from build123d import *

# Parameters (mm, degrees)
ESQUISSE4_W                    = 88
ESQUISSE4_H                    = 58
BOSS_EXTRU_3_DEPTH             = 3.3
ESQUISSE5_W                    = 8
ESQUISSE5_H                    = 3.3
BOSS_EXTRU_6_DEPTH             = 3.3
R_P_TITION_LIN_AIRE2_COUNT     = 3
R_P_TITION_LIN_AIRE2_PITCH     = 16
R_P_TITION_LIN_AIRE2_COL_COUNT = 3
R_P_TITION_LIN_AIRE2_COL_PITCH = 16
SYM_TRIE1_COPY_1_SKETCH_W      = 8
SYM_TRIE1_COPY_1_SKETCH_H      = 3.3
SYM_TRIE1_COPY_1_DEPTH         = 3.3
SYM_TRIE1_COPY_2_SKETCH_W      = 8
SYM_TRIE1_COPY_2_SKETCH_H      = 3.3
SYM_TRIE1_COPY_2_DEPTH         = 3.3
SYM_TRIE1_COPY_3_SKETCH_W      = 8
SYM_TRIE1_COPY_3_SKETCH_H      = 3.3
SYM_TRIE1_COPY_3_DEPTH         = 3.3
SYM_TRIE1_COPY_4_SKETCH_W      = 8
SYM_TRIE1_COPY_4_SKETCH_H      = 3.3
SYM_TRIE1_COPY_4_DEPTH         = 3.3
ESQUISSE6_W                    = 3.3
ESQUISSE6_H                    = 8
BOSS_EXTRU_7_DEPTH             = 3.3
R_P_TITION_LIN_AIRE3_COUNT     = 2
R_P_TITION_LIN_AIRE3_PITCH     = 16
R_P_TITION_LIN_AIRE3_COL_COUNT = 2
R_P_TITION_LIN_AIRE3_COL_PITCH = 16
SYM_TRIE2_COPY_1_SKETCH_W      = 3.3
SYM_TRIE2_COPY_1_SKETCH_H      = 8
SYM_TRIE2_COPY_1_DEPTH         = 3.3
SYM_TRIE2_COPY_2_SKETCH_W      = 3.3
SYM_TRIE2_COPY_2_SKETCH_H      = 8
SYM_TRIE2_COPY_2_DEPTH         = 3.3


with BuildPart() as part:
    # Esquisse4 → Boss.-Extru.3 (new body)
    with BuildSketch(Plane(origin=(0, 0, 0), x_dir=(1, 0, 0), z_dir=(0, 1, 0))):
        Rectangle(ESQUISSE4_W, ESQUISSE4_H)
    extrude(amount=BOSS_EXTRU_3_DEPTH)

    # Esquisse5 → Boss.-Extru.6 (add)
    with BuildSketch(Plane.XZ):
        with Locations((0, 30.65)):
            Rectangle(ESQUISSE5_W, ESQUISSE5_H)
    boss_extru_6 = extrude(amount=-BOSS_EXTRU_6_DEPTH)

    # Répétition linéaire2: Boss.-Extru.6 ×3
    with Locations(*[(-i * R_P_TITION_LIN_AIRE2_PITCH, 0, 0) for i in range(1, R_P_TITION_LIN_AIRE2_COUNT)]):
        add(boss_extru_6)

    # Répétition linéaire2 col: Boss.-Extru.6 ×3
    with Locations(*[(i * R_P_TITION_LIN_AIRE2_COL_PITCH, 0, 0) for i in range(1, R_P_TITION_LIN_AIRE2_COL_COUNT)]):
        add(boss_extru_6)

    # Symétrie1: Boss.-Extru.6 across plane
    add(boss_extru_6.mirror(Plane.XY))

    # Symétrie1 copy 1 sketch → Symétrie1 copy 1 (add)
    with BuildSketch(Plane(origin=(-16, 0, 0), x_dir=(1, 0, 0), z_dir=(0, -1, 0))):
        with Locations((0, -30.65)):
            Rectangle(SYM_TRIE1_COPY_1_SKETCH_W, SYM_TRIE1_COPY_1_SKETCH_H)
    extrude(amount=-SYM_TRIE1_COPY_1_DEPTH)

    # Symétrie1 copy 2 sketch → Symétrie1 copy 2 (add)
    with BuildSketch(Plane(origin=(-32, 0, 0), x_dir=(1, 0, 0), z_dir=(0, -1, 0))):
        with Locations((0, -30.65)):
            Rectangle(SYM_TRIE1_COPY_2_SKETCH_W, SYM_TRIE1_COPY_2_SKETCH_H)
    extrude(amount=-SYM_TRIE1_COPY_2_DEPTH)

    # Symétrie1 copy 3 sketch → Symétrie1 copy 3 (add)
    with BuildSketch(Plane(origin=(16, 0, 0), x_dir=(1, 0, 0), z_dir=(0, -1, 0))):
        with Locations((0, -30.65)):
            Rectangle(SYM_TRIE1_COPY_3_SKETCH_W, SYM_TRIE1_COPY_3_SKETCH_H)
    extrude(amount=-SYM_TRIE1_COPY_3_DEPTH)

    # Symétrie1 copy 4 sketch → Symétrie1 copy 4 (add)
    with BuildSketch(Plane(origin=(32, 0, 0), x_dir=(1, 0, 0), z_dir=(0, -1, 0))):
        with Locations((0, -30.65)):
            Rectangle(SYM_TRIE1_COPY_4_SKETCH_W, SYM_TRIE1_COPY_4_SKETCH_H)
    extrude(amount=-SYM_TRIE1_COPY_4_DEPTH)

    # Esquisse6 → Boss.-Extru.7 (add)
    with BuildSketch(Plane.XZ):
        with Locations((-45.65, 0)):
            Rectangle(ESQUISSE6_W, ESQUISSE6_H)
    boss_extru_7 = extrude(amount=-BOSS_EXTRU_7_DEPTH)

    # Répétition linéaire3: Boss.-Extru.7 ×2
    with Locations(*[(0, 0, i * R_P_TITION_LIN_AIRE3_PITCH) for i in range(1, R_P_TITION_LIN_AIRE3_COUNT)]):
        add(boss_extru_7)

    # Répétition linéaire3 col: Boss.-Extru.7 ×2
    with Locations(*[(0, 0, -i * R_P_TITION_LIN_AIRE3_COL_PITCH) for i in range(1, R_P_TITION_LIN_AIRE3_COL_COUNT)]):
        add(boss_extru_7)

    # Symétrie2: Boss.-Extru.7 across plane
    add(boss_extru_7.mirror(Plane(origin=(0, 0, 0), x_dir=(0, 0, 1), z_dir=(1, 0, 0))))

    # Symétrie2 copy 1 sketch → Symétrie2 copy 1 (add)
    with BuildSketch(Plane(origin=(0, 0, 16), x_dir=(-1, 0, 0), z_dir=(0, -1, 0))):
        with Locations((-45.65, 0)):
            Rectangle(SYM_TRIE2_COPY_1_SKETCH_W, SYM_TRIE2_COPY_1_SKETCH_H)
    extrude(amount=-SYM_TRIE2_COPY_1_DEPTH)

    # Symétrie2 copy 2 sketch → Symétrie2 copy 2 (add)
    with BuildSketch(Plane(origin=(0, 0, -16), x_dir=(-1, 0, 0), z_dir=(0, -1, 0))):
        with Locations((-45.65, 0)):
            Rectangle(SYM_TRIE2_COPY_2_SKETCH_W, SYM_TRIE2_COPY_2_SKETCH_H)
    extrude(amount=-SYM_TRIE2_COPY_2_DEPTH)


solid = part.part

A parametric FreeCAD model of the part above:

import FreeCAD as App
import Part
import Sketcher
from FreeCAD import Vector
Q = App.Units.Quantity


def add_polygon(sketch, points):
    """Adds a closed chain of lines whose ends are joined by coincident constraints."""
    first, n = sketch.GeometryCount, len(points)
    for a, b in zip(points, points[1:] + points[:1]):
        sketch.addGeometry(Part.LineSegment(App.Vector(*a, 0), App.Vector(*b, 0)), False)
    for i in range(n):
        sketch.addConstraint(Sketcher.Constraint("Coincident", first + i, 2, first + (i + 1) % n, 1))

doc = App.newDocument("Part")
body = doc.addObject("PartDesign::Body", "Body")

sketch1 = body.newObject("Sketcher::SketchObject", "Sketch")
sketch1.AttachmentSupport = (doc.getObject("XZ_Plane"), [""])
sketch1.MapMode = "FlatFace"
add_polygon(sketch1, [(-44, -29), (-44, 29), (44, 29), (44, -29)])
sketch1.addConstraint([
    Sketcher.Constraint("Vertical", 0),
    Sketcher.Constraint("Horizontal", 1),
    Sketcher.Constraint("Vertical", 2),
    Sketcher.Constraint("Horizontal", 3),
    Sketcher.Constraint("Symmetric", 0, 2, 2, 2, -1, 1),
    Sketcher.Constraint("DistanceX", 1, 1, 1, 2, Q("88 mm")),
    Sketcher.Constraint("DistanceY", 0, 1, 0, 2, Q("58 mm")),
])
pad1 = body.newObject("PartDesign::Pad", "Pad")
pad1.Profile = sketch1
pad1.Length = 3.3
pad1.Reversed = True

sketch2 = body.newObject("Sketcher::SketchObject", "Sketch001")
sketch2.AttachmentSupport = (doc.getObject("XZ_Plane"), [""])
sketch2.MapMode = "FlatFace"
add_polygon(sketch2, [(-4, 32.3), (-4, 29), (4, 29), (4, 32.3)])
sketch2.addConstraint([
    Sketcher.Constraint("Vertical", 0),
    Sketcher.Constraint("Horizontal", 1),
    Sketcher.Constraint("Vertical", 2),
    Sketcher.Constraint("Horizontal", 3),
    Sketcher.Constraint("DistanceX", 1, 1, 1, 2, Q("8 mm")),
    Sketcher.Constraint("DistanceY", 0, 2, 0, 1, Q("3.3 mm")),
    Sketcher.Constraint("DistanceX", 0, 2, -1, 1, Q("4 mm")),
    Sketcher.Constraint("DistanceY", -1, 1, 0, 2, Q("29 mm")),
])
pad2 = body.newObject("PartDesign::Pad", "Pad001")
pad2.Profile = sketch2
pad2.Length = 3.3
pad2.Reversed = True
doc.recompute()

linearpattern = body.newObject("PartDesign::LinearPattern", "LinearPattern")
linearpattern.Originals = [pad2]
linearpattern.Direction = (doc.getObject("X_Axis"), [""])
linearpattern.Mode = "offset"
linearpattern.Offset = 16
linearpattern.Occurrences = 3
linearpattern.Reversed = True
body.Tip = linearpattern
doc.recompute()

linearpattern2 = body.newObject("PartDesign::LinearPattern", "LinearPattern001")
linearpattern2.Originals = [pad2]
linearpattern2.Direction = (doc.getObject("X_Axis"), [""])
linearpattern2.Mode = "offset"
linearpattern2.Offset = 16
linearpattern2.Occurrences = 3
body.Tip = linearpattern2
doc.recompute()

mirrored = body.newObject("PartDesign::Mirrored", "Mirrored")
mirrored.Originals = [pad2]
mirrored.MirrorPlane = (doc.getObject("XY_Plane"), [""])
body.Tip = mirrored

sketch3 = body.newObject("Sketcher::SketchObject", "Sketch002")
sketch3.AttachmentSupport = (doc.getObject("XZ_Plane"), [""])
sketch3.MapMode = "FlatFace"
add_polygon(sketch3, [(-20, -29), (-20, -32.3), (-12, -32.3), (-12, -29)])
sketch3.addConstraint([
    Sketcher.Constraint("Vertical", 0),
    Sketcher.Constraint("Horizontal", 1),
    Sketcher.Constraint("Vertical", 2),
    Sketcher.Constraint("Horizontal", 3),
    Sketcher.Constraint("DistanceX", 1, 1, 1, 2, Q("8 mm")),
    Sketcher.Constraint("DistanceY", 0, 2, 0, 1, Q("3.3 mm")),
    Sketcher.Constraint("DistanceX", 0, 2, -1, 1, Q("20 mm")),
    Sketcher.Constraint("DistanceY", 2, 2, -1, 1, Q("29 mm")),
])
pad3 = body.newObject("PartDesign::Pad", "Pad002")
pad3.Profile = sketch3
pad3.Length = 3.3
pad3.Reversed = True

sketch4 = body.newObject("Sketcher::SketchObject", "Sketch003")
sketch4.AttachmentSupport = (doc.getObject("XZ_Plane"), [""])
sketch4.MapMode = "FlatFace"
add_polygon(sketch4, [(-36, -29), (-36, -32.3), (-28, -32.3), (-28, -29)])
sketch4.addConstraint([
    Sketcher.Constraint("Vertical", 0),
    Sketcher.Constraint("Horizontal", 1),
    Sketcher.Constraint("Vertical", 2),
    Sketcher.Constraint("Horizontal", 3),
    Sketcher.Constraint("DistanceX", 1, 1, 1, 2, Q("8 mm")),
    Sketcher.Constraint("DistanceY", 0, 2, 0, 1, Q("3.3 mm")),
    Sketcher.Constraint("DistanceX", 0, 2, -1, 1, Q("36 mm")),
    Sketcher.Constraint("DistanceY", 2, 2, -1, 1, Q("29 mm")),
])
pad4 = body.newObject("PartDesign::Pad", "Pad003")
pad4.Profile = sketch4
pad4.Length = 3.3
pad4.Reversed = True

sketch5 = body.newObject("Sketcher::SketchObject", "Sketch004")
sketch5.AttachmentSupport = (doc.getObject("XZ_Plane"), [""])
sketch5.MapMode = "FlatFace"
add_polygon(sketch5, [(12, -29), (12, -32.3), (20, -32.3), (20, -29)])
sketch5.addConstraint([
    Sketcher.Constraint("Vertical", 0),
    Sketcher.Constraint("Horizontal", 1),
    Sketcher.Constraint("Vertical", 2),
    Sketcher.Constraint("Horizontal", 3),
    Sketcher.Constraint("DistanceX", 1, 1, 1, 2, Q("8 mm")),
    Sketcher.Constraint("DistanceY", 0, 2, 0, 1, Q("3.3 mm")),
    Sketcher.Constraint("DistanceX", -1, 1, 0, 2, Q("12 mm")),
    Sketcher.Constraint("DistanceY", 2, 2, -1, 1, Q("29 mm")),
])
pad5 = body.newObject("PartDesign::Pad", "Pad004")
pad5.Profile = sketch5
pad5.Length = 3.3
pad5.Reversed = True

sketch6 = body.newObject("Sketcher::SketchObject", "Sketch005")
sketch6.AttachmentSupport = (doc.getObject("XZ_Plane"), [""])
sketch6.MapMode = "FlatFace"
add_polygon(sketch6, [(28, -29), (28, -32.3), (36, -32.3), (36, -29)])
sketch6.addConstraint([
    Sketcher.Constraint("Vertical", 0),
    Sketcher.Constraint("Horizontal", 1),
    Sketcher.Constraint("Vertical", 2),
    Sketcher.Constraint("Horizontal", 3),
    Sketcher.Constraint("DistanceX", 1, 1, 1, 2, Q("8 mm")),
    Sketcher.Constraint("DistanceY", 0, 2, 0, 1, Q("3.3 mm")),
    Sketcher.Constraint("DistanceX", -1, 1, 0, 2, Q("28 mm")),
    Sketcher.Constraint("DistanceY", 2, 2, -1, 1, Q("29 mm")),
])
pad6 = body.newObject("PartDesign::Pad", "Pad005")
pad6.Profile = sketch6
pad6.Length = 3.3
pad6.Reversed = True

sketch7 = body.newObject("Sketcher::SketchObject", "Sketch006")
sketch7.AttachmentSupport = (doc.getObject("XZ_Plane"), [""])
sketch7.MapMode = "FlatFace"
add_polygon(sketch7, [(-47.3, 4), (-47.3, -4), (-44, -4), (-44, 4)])
sketch7.addConstraint([
    Sketcher.Constraint("Vertical", 0),
    Sketcher.Constraint("Horizontal", 1),
    Sketcher.Constraint("Vertical", 2),
    Sketcher.Constraint("Horizontal", 3),
    Sketcher.Constraint("DistanceY", 0, 2, 0, 1, Q("8 mm")),
    Sketcher.Constraint("DistanceX", 1, 1, 1, 2, Q("3.3 mm")),
    Sketcher.Constraint("DistanceY", 0, 2, -1, 1, Q("4 mm")),
    Sketcher.Constraint("DistanceX", 1, 2, -1, 1, Q("44 mm")),
])
pad7 = body.newObject("PartDesign::Pad", "Pad006")
pad7.Profile = sketch7
pad7.Length = 3.3
pad7.Reversed = True
doc.recompute()

linearpattern3 = body.newObject("PartDesign::LinearPattern", "LinearPattern002")
linearpattern3.Originals = [pad7]
linearpattern3.Direction = (doc.getObject("Z_Axis"), [""])
linearpattern3.Mode = "offset"
linearpattern3.Offset = 16
linearpattern3.Occurrences = 2
body.Tip = linearpattern3
doc.recompute()

linearpattern4 = body.newObject("PartDesign::LinearPattern", "LinearPattern003")
linearpattern4.Originals = [pad7]
linearpattern4.Direction = (doc.getObject("Z_Axis"), [""])
linearpattern4.Mode = "offset"
linearpattern4.Offset = 16
linearpattern4.Occurrences = 2
linearpattern4.Reversed = True
body.Tip = linearpattern4
doc.recompute()

mirrored2 = body.newObject("PartDesign::Mirrored", "Mirrored001")
mirrored2.Originals = [pad7]
mirrored2.MirrorPlane = (doc.getObject("YZ_Plane"), [""])
body.Tip = mirrored2

sketch8 = body.newObject("Sketcher::SketchObject", "Sketch007")
sketch8.AttachmentSupport = (doc.getObject("XZ_Plane"), [""])
sketch8.MapMode = "FlatFace"
add_polygon(sketch8, [(47.3, 12), (47.3, 20), (44, 20), (44, 12)])
sketch8.addConstraint([
    Sketcher.Constraint("Vertical", 0),
    Sketcher.Constraint("Horizontal", 1),
    Sketcher.Constraint("Vertical", 2),
    Sketcher.Constraint("Horizontal", 3),
    Sketcher.Constraint("DistanceY", 0, 1, 0, 2, Q("8 mm")),
    Sketcher.Constraint("DistanceX", 1, 2, 1, 1, Q("3.3 mm")),
    Sketcher.Constraint("DistanceY", -1, 1, 0, 2, Q("20 mm")),
    Sketcher.Constraint("DistanceX", -1, 1, 1, 2, Q("44 mm")),
])
pad8 = body.newObject("PartDesign::Pad", "Pad007")
pad8.Profile = sketch8
pad8.Length = 3.3
pad8.Reversed = True

sketch9 = body.newObject("Sketcher::SketchObject", "Sketch008")
sketch9.AttachmentSupport = (doc.getObject("XZ_Plane"), [""])
sketch9.MapMode = "FlatFace"
add_polygon(sketch9, [(47.3, -20), (47.3, -12), (44, -12), (44, -20)])
sketch9.addConstraint([
    Sketcher.Constraint("Vertical", 0),
    Sketcher.Constraint("Horizontal", 1),
    Sketcher.Constraint("Vertical", 2),
    Sketcher.Constraint("Horizontal", 3),
    Sketcher.Constraint("DistanceY", 0, 1, 0, 2, Q("8 mm")),
    Sketcher.Constraint("DistanceX", 1, 2, 1, 1, Q("3.3 mm")),
    Sketcher.Constraint("DistanceY", 0, 2, -1, 1, Q("12 mm")),
    Sketcher.Constraint("DistanceX", -1, 1, 1, 2, Q("44 mm")),
])
pad9 = body.newObject("PartDesign::Pad", "Pad008")
pad9.Profile = sketch9
pad9.Length = 3.3
pad9.Reversed = True

doc.recompute()
